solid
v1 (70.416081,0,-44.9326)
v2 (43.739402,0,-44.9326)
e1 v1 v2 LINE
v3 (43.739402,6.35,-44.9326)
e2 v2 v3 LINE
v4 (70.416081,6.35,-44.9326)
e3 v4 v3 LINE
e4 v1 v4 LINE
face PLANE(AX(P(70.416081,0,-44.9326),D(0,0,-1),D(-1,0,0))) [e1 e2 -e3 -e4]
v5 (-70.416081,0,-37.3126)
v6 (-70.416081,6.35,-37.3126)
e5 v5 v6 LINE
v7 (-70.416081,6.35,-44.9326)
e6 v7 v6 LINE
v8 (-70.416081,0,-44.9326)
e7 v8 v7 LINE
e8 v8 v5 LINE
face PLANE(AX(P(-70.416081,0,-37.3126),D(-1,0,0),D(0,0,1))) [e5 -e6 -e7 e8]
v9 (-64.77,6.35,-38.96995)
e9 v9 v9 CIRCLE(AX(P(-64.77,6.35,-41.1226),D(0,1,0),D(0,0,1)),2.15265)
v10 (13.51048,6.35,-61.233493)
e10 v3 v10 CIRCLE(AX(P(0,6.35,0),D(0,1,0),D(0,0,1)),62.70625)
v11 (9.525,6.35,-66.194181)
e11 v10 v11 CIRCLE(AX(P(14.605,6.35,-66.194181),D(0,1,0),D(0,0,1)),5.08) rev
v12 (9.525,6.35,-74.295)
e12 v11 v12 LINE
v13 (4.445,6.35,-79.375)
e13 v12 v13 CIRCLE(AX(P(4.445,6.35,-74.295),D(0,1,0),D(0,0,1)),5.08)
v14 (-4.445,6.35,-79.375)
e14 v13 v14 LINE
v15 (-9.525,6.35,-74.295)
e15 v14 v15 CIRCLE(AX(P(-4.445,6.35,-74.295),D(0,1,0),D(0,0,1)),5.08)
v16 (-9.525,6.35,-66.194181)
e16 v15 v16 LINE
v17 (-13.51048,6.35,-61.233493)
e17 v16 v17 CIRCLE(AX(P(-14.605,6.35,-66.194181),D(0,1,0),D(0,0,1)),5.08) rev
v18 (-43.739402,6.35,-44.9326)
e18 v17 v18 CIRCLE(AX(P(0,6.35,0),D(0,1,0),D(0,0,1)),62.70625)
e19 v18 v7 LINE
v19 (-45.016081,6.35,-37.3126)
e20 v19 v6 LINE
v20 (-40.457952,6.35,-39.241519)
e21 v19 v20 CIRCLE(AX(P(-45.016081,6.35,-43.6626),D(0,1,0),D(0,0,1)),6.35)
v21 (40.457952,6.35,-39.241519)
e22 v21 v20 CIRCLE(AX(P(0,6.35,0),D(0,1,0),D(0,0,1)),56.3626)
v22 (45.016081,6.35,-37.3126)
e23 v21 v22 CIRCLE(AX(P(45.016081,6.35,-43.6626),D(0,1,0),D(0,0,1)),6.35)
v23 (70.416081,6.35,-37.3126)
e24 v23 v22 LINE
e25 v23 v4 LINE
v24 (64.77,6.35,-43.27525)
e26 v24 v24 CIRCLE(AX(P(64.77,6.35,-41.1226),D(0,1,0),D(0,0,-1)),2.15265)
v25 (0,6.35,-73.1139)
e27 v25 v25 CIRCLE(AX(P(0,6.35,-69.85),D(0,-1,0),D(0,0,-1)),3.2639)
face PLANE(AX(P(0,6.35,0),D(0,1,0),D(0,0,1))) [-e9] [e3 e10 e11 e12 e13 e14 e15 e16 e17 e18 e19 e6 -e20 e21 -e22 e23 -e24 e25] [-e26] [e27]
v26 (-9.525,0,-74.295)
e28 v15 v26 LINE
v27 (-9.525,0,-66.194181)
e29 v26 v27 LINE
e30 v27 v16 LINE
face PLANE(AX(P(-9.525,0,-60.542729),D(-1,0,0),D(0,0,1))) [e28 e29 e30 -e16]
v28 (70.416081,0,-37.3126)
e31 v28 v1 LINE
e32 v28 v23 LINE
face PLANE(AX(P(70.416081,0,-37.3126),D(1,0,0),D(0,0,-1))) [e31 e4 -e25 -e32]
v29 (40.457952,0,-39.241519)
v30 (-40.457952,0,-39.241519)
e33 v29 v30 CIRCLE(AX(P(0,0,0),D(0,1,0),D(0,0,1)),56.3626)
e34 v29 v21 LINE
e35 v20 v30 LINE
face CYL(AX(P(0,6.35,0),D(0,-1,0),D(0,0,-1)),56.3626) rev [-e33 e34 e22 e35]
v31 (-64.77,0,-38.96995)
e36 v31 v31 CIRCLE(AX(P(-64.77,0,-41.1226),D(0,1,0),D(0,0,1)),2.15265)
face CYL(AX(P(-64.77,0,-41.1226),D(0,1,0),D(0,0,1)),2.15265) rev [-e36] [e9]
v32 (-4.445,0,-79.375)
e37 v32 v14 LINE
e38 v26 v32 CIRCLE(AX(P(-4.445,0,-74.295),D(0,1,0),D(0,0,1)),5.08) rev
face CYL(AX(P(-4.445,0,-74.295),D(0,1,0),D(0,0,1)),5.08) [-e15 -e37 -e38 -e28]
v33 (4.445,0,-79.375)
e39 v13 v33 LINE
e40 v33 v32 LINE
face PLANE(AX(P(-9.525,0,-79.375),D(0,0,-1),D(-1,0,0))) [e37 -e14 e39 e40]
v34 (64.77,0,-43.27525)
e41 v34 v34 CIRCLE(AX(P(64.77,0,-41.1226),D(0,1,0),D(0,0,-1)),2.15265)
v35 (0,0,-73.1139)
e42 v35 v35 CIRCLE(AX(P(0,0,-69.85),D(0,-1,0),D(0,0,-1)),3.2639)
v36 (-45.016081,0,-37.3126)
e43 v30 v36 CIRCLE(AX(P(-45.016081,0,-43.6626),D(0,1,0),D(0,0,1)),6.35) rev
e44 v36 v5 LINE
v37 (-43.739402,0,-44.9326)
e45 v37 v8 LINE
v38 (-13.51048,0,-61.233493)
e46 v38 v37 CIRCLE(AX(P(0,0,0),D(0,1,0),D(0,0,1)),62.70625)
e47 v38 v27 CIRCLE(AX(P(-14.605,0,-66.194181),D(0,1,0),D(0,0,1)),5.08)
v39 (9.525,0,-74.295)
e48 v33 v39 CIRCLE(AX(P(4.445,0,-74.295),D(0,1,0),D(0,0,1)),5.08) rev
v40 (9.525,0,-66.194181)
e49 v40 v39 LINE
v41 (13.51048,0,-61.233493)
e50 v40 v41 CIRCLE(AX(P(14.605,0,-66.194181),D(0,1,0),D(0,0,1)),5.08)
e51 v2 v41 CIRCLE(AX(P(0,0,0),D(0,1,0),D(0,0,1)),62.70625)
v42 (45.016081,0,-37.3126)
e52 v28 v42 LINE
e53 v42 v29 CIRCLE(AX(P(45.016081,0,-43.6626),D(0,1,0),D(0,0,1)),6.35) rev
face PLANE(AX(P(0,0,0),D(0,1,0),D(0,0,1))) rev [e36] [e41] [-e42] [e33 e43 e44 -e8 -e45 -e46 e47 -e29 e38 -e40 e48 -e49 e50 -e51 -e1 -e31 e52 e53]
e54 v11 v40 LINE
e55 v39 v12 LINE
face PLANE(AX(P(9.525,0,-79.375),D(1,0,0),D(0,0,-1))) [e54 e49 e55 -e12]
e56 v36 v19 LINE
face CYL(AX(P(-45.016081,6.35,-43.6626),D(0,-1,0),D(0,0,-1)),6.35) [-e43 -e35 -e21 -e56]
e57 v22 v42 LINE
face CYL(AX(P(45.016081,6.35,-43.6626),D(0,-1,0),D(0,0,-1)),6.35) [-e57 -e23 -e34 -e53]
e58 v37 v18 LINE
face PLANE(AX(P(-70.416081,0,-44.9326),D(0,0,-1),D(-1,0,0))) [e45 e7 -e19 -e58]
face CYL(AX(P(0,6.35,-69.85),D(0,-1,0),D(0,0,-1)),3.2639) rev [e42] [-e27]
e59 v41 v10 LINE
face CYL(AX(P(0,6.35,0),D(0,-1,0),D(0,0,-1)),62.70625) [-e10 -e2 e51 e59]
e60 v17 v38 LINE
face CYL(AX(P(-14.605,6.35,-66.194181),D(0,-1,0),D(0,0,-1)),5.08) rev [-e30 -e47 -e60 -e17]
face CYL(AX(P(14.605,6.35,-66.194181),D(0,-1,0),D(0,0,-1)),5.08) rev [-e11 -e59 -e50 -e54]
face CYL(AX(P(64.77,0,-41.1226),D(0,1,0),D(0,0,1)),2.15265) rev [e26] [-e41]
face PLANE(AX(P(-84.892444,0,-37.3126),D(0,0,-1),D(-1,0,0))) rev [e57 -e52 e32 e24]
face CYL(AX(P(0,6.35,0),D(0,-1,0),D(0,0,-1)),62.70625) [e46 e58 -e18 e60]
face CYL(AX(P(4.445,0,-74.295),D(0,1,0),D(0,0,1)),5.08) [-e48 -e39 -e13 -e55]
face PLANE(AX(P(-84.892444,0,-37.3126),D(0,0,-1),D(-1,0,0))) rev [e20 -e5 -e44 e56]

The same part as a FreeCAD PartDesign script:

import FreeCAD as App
import Part
import Sketcher
Q = App.Units.Quantity


def edges_at(feature, points):
    """Names of the edges that pass closest to the given points."""
    edges = feature.Shape.Edges
    near = lambda p: min(range(len(edges)), key=lambda i: edges[i].distToShape(Part.Vertex(*p))[0])
    return sorted({f"Edge{near(p) + 1}" for p in points})

doc = App.newDocument("Part")
body = doc.addObject("PartDesign::Body", "Body")

sketch1 = body.newObject("Sketcher::SketchObject", "Sketch")
sketch1.AttachmentSupport = (doc.getObject("XZ_Plane"), [""])
sketch1.MapMode = "FlatFace"
sketch1.addGeometry([
    Part.Circle(App.Vector(0, 0, 0), App.Vector(0, 0, 1), 63),
    Part.Circle(App.Vector(0, 0, 0), App.Vector(0, 0, 1), 56),
], False)
sketch1.addConstraint([
    Sketcher.Constraint("Coincident", 0, 3, -1, 1),
    Sketcher.Constraint("Coincident", 1, 3, -1, 1),
    Sketcher.Constraint("Diameter", 0, Q("4.9375 in")),
    Sketcher.Constraint("Diameter", 1, Q("4.438 in")),
])
pad1 = body.newObject("PartDesign::Pad", "Pad")
pad1.Profile = sketch1
pad1.Length = Q("0.25 in")
pad1.Reversed = True

sketch2 = body.newObject("Sketcher::SketchObject", "Sketch001")
sketch2.AttachmentSupport = (doc.getObject("XZ_Plane"), [""])
sketch2.MapMode = "FlatFace"
sketch2.AttachmentOffset = App.Placement(App.Vector(0, 0, -0.25 * 25.4), App.Rotation())
sketch2.addGeometry([
    Part.LineSegment(App.Vector(-10, -79, 0), App.Vector(-10, -61, 0)),
    Part.LineSegment(App.Vector(-10, -61, 0), App.Vector(10, -61, 0)),
    Part.LineSegment(App.Vector(10, -61, 0), App.Vector(10, -79, 0)),
    Part.LineSegment(App.Vector(10, -79, 0), App.Vector(-10, -79, 0)),
], False)
sketch2.addConstraint([
    Sketcher.Constraint("Coincident", 0, 2, 1, 1),
    Sketcher.Constraint("Coincident", 1, 2, 2, 1),
    Sketcher.Constraint("Coincident", 2, 2, 3, 1),
    Sketcher.Constraint("Coincident", 3, 2, 0, 1),
    Sketcher.Constraint("Vertical", 0),
    Sketcher.Constraint("Horizontal", 1),
    Sketcher.Constraint("Vertical", 2),
    Sketcher.Constraint("Horizontal", 3),
    Sketcher.Constraint("DistanceX", 1, 1, 1, 2, Q("0.75 in")),
    Sketcher.Constraint("DistanceX", 0, 2, -1, 1, Q("0.375 in")),
    Sketcher.Constraint("DistanceY", 2, 2, -1, 1, Q("3.125 in")),
    Sketcher.Constraint("DistanceY", 0, 1, 0, 2, Q("18.832271 mm")),
])
pad2 = body.newObject("PartDesign::Pad", "Pad001")
pad2.Profile = sketch2
pad2.Length = Q("0.25 in")
doc.recompute()

fillet = body.newObject("PartDesign::Fillet", "Fillet")
fillet.Base = (pad2, edges_at(pad2, [
    (9.525, 3.175, -61.979),
    (-9.525, 3.175, -61.979),
    (9.525, 3.175, -79.375),
    (-9.525, 3.175, -79.375),
]))
fillet.Radius = Q("0.2 in")

sketch3 = body.newObject("Sketcher::SketchObject", "Sketch002")
sketch3.AttachmentSupport = (doc.getObject("XZ_Plane"), [""])
sketch3.MapMode = "FlatFace"
sketch3.addGeometry(Part.Circle(App.Vector(0, -69.8, 0), App.Vector(0, 0, 1), 3.3), False)
sketch3.addConstraint([
    Sketcher.Constraint("PointOnObject", 0, 3, -2),
    Sketcher.Constraint("Diameter", 0, Q("0.257 in")),
    Sketcher.Constraint("DistanceY", 0, 3, -1, 1, Q("2.75 in")),
])
pocket1 = body.newObject("PartDesign::Pocket", "Pocket")
pocket1.Profile = sketch3
pocket1.Type = "ThroughAll"

sketch4 = body.newObject("Sketcher::SketchObject", "Sketch003")
sketch4.AttachmentSupport = (doc.getObject("XZ_Plane"), [""])
sketch4.MapMode = "FlatFace"
sketch4.AttachmentOffset = App.Placement(App.Vector(0, 0, -0.25 * 25.4), App.Rotation())
sketch4.addGeometry([
    Part.LineSegment(App.Vector(-85, -37, 0), App.Vector(-85, 80, 0)),
    Part.LineSegment(App.Vector(-85, 80, 0), App.Vector(85, 80, 0)),
    Part.LineSegment(App.Vector(85, 80, 0), App.Vector(85, -37, 0)),
    Part.LineSegment(App.Vector(85, -37, 0), App.Vector(-85, -37, 0)),
], False)
sketch4.addConstraint([
    Sketcher.Constraint("Coincident", 0, 2, 1, 1),
    Sketcher.Constraint("Coincident", 1, 2, 2, 1),
    Sketcher.Constraint("Coincident", 2, 2, 3, 1),
    Sketcher.Constraint("Coincident", 3, 2, 0, 1),
    Sketcher.Constraint("Vertical", 0),
    Sketcher.Constraint("Horizontal", 1),
    Sketcher.Constraint("Vertical", 2),
    Sketcher.Constraint("Horizontal", 3),
    Sketcher.Constraint("DistanceY", 2, 2, -1, 1, Q("1.469 in")),
    Sketcher.Constraint("DistanceX", 1, 1, 1, 2, Q("169.784889 mm")),
    Sketcher.Constraint("DistanceY", 0, 1, 0, 2, Q("116.987853 mm")),
    Sketcher.Constraint("DistanceX", 0, 2, -1, 1, Q("84.892444 mm")),
])
pocket2 = body.newObject("PartDesign::Pocket", "Pocket001")
pocket2.Profile = sketch4
pocket2.Type = "ThroughAll"
pocket2.Reversed = True
doc.recompute()

fillet2 = body.newObject("PartDesign::Fillet", "Fillet001")
fillet2.Base = (pocket2, edges_at(pocket2, [(-42.243, 3.175, -37.313), (42.243, 3.175, -37.313)]))
fillet2.Radius = Q("0.25 in")

sketch5 = body.newObject("Sketcher::SketchObject", "Sketch004")
sketch5.AttachmentSupport = (doc.getObject("XZ_Plane"), [""])
sketch5.MapMode = "FlatFace"
sketch5.AttachmentOffset = App.Placement(App.Vector(0, 0, -0.25 * 25.4), App.Rotation())
sketch5.addGeometry([
    Part.LineSegment(App.Vector(-70.4, -37.3, 0), App.Vector(-50.4, -37.3, 0)),
    Part.LineSegment(App.Vector(-50.4, -37.3, 0), App.Vector(-43.7, -44.9, 0)),
    Part.LineSegment(App.Vector(-43.7, -44.9, 0), App.Vector(-70.4, -44.9, 0)),
    Part.LineSegment(App.Vector(-70.4, -44.9, 0), App.Vector(-70.4, -37.3, 0)),
    Part.Circle(App.Vector(-64.8, -41.1, 0), App.Vector(0, 0, 1), 2.2),
    Part.LineSegment(App.Vector(43.7, -44.9, 0), App.Vector(50.4, -37.3, 0)),
    Part.LineSegment(App.Vector(50.4, -37.3, 0), App.Vector(70.4, -37.3, 0)),
    Part.LineSegment(App.Vector(70.4, -37.3, 0), App.Vector(70.4, -44.9, 0)),
    Part.LineSegment(App.Vector(70.4, -44.9, 0), App.Vector(43.7, -44.9, 0)),
    Part.Circle(App.Vector(64.8, -41.1, 0), App.Vector(0, 0, 1), 2.2),
], False)
sketch5.addConstraint([
    Sketcher.Constraint("Coincident", 0, 2, 1, 1),
    Sketcher.Constraint("Coincident", 1, 2, 2, 1),
    Sketcher.Constraint("Coincident", 2, 2, 3, 1),
    Sketcher.Constraint("Coincident", 3, 2, 0, 1),
    Sketcher.Constraint("Coincident", 5, 2, 6, 1),
    Sketcher.Constraint("Coincident", 6, 2, 7, 1),
    Sketcher.Constraint("Coincident", 7, 2, 8, 1),
    Sketcher.Constraint("Coincident", 8, 2, 5, 1),
    Sketcher.Constraint("Horizontal", 0),
    Sketcher.Constraint("Horizontal", 2),
    Sketcher.Constraint("Vertical", 3),
    Sketcher.Constraint("Horizontal", 6),
    Sketcher.Constraint("Vertical", 7),
    Sketcher.Constraint("Horizontal", 8),
    Sketcher.Constraint("Equal", 4, 9),
    Sketcher.Constraint("Symmetric", 4, 3, 9, 3, -2),
    Sketcher.Constraint("Symmetric", 0, 2, 5, 2, -2),
    Sketcher.Constraint("Symmetric", 2, 2, 7, 2, -2),
    Sketcher.Constraint("Equal", 2, 8),
    Sketcher.Constraint("DistanceY", 3, 1, 3, 2, Q("0.3 in")),
    Sketcher.Constraint("Diameter", 4, Q("0.1695 in")),
    Sketcher.Constraint("DistanceX", 4, 3, 9, 3, Q("5.1 in")),
    Sketcher.Constraint("DistanceY", 4, 3, 0, 2, Q("0.15 in")),
    Sketcher.Constraint("DistanceY", 4, 3, -1, 1, Q("1.619 in")),
    Sketcher.Constraint("DistanceX", 0, 1, 0, 2, Q("20.019219 mm")),
    Sketcher.Constraint("DistanceX", 2, 2, 2, 1, Q("26.67668 mm")),
    Sketcher.Constraint("DistanceX", 1, 2, -1, 1, Q("43.739402 mm")),
])
pad3 = body.newObject("PartDesign::Pad", "Pad002")
pad3.Profile = sketch5
pad3.Length = Q("0.25 in")

doc.recompute()
